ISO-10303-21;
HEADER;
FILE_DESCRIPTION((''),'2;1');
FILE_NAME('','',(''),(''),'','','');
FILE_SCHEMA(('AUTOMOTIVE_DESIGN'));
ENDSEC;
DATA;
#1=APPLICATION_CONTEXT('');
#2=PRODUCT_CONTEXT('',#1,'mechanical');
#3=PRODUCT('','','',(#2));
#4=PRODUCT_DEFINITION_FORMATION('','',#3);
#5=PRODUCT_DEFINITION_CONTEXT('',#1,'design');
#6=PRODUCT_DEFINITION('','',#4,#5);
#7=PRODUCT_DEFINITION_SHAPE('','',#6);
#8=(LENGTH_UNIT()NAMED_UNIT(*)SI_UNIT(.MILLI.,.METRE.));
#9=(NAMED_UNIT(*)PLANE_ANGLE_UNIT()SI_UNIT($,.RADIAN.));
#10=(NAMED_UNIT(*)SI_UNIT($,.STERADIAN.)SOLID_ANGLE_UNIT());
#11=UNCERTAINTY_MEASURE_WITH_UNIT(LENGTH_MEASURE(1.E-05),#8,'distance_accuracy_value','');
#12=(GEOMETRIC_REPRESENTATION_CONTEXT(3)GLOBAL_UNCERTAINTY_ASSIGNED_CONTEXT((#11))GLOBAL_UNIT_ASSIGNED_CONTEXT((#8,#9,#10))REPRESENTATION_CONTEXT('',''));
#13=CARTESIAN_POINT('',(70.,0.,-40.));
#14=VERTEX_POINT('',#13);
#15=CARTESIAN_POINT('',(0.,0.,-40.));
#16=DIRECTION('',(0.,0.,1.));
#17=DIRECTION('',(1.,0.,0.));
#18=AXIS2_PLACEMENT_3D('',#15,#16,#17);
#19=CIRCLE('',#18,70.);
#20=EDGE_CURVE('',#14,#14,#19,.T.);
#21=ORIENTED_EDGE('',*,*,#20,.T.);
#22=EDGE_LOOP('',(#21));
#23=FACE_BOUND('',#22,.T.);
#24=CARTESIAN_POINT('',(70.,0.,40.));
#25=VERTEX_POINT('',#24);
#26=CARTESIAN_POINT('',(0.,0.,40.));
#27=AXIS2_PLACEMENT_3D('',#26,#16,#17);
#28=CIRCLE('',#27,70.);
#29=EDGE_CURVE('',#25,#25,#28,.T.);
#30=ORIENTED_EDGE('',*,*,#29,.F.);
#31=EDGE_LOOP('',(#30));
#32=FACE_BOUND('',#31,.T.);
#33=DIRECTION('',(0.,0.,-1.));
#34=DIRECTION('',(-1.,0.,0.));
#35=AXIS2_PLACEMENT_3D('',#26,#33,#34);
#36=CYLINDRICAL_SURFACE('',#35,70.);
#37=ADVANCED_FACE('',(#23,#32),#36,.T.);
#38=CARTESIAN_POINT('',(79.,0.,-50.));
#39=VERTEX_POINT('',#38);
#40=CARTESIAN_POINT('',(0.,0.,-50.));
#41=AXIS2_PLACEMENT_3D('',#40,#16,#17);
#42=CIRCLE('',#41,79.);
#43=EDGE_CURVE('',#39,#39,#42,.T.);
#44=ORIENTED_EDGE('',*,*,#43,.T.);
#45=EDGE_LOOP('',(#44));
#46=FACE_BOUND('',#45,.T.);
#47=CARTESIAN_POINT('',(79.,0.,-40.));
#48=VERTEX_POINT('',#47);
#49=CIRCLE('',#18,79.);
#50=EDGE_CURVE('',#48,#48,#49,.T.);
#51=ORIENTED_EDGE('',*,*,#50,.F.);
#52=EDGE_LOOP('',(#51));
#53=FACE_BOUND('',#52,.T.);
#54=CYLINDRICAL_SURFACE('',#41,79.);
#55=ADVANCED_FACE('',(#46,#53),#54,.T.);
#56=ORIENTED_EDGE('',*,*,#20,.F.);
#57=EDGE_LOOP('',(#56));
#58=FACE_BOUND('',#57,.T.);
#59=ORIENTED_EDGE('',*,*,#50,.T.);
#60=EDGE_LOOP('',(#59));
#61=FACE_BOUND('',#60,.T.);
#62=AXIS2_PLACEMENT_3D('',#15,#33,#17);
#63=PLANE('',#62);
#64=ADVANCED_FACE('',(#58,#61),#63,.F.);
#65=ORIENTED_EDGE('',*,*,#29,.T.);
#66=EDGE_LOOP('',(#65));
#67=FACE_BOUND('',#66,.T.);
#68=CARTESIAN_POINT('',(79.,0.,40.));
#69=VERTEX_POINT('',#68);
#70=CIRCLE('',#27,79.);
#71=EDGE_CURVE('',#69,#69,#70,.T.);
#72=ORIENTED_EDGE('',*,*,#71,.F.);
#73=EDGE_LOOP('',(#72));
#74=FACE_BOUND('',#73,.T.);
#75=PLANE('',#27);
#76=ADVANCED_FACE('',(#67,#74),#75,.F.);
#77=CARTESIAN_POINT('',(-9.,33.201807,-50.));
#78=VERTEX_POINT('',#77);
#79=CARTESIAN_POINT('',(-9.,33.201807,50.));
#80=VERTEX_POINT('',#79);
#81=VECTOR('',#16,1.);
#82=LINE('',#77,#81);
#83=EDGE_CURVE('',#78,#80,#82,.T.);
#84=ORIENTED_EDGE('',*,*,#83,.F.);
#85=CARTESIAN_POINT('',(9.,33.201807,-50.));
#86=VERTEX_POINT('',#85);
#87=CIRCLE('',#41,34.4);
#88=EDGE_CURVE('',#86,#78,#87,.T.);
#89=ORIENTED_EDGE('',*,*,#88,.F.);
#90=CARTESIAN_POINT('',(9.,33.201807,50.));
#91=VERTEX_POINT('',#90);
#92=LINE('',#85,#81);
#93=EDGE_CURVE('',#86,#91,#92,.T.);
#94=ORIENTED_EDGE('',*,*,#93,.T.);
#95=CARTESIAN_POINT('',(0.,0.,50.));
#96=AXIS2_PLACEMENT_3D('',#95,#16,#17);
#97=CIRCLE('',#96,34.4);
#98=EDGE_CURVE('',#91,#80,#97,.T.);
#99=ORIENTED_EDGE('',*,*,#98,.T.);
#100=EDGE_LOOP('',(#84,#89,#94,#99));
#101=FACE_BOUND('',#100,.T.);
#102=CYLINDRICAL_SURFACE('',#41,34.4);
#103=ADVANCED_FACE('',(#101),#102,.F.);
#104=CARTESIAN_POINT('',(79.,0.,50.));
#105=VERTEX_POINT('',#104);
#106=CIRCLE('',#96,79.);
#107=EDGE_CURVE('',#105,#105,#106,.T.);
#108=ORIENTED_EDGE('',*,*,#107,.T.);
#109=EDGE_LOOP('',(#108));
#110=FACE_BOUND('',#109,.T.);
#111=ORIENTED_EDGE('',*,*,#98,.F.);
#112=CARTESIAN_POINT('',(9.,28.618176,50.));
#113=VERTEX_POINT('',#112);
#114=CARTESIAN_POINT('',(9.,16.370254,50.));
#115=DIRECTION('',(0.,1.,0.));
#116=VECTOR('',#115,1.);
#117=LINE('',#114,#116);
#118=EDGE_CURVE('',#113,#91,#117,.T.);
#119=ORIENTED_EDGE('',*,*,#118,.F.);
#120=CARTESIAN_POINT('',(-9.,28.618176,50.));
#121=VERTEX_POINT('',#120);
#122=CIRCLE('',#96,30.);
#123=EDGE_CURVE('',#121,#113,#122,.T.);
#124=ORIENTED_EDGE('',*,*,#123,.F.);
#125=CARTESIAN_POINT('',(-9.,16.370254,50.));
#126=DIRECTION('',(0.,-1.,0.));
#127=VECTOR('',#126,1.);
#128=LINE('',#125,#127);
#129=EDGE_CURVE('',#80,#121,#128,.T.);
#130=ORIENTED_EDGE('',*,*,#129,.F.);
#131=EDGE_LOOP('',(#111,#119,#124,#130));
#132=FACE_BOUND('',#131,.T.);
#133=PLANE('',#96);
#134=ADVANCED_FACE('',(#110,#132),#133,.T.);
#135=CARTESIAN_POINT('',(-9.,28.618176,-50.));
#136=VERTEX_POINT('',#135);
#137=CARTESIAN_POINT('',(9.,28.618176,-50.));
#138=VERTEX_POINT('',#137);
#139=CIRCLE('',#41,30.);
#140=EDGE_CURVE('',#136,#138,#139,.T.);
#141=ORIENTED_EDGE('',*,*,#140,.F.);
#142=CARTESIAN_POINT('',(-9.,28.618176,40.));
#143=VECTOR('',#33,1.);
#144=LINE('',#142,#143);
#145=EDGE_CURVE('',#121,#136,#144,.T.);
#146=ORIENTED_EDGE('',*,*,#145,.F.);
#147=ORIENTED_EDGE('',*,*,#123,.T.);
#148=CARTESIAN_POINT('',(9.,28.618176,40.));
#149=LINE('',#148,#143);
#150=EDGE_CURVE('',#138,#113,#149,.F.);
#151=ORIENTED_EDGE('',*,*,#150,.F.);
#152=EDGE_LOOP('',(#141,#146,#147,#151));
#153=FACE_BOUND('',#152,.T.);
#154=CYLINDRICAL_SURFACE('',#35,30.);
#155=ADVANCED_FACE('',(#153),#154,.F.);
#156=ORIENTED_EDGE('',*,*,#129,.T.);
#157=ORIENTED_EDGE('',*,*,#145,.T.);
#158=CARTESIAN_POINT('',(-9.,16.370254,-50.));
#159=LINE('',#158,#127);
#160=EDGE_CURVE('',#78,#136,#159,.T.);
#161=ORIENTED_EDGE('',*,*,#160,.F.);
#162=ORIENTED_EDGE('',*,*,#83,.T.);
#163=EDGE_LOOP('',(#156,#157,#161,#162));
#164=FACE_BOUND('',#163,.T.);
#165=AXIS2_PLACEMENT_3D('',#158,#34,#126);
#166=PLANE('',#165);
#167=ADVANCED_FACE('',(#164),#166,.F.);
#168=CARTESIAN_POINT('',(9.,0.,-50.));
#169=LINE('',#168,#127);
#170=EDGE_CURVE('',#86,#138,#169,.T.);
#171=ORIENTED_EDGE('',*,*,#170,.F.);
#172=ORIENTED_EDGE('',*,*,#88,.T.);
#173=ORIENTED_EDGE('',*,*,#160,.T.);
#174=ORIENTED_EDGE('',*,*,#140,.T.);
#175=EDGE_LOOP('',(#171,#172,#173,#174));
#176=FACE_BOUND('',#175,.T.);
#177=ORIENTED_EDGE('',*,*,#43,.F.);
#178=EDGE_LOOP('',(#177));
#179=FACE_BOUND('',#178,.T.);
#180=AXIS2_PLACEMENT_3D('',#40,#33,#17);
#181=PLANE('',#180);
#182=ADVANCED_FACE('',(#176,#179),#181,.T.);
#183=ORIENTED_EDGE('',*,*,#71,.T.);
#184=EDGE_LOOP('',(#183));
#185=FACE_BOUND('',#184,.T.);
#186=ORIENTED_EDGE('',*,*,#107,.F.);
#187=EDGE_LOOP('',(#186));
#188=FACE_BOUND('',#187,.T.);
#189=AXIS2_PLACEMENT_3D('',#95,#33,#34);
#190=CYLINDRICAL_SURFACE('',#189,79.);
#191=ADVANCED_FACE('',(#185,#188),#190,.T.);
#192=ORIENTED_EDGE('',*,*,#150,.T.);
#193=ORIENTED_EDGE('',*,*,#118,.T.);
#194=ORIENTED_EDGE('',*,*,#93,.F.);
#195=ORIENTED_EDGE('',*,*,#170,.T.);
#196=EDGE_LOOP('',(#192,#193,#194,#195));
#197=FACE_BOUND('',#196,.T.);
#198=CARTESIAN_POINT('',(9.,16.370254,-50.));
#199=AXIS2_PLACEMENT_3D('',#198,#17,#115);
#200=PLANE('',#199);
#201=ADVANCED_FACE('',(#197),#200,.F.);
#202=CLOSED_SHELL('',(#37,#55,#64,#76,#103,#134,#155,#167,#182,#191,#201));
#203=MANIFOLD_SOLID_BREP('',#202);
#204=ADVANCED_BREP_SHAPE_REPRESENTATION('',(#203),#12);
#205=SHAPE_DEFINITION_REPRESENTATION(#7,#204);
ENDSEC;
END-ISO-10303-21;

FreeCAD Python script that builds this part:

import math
import FreeCAD as App
import Part
import Sketcher
Q = App.Units.Quantity

doc = App.newDocument("Part")
body = doc.addObject("PartDesign::Body", "Body")

# Sketch on XY plane
sketch1 = body.newObject("Sketcher::SketchObject", "Sketch")
sketch1.AttachmentSupport = (doc.getObject("XY_Plane"), [""])
sketch1.MapMode = "FlatFace"
sketch1.addGeometry([
    Part.Circle(App.Vector(0, 0, 0), App.Vector(0, 0, 1), 70),
    Part.Circle(App.Vector(0, 0, 0), App.Vector(0, 0, 1), 30),
], False)
sketch1.addConstraint([
    Sketcher.Constraint("Coincident", 0, 3, -1, 1),
    Sketcher.Constraint("Coincident", 1, 3, -1, 1),
    Sketcher.Constraint("Diameter", 0, Q("140 mm")),
    Sketcher.Constraint("Diameter", 1, Q("60 mm")),
])
pad1 = body.newObject("PartDesign::Pad", "Pad")
pad1.Profile = sketch1
pad1.Length = 80
pad1.Midplane = True

# Sketch on XY plane
sketch2 = body.newObject("Sketcher::SketchObject", "Sketch001")
sketch2.AttachmentSupport = (doc.getObject("XY_Plane"), [""])
sketch2.MapMode = "FlatFace"
sketch2.AttachmentOffset = App.Placement(App.Vector(0, 0, 40), App.Rotation())
sketch2.addGeometry([
    Part.Circle(App.Vector(0, 0, 0), App.Vector(0, 0, 1), 79),
    Part.Circle(App.Vector(0, 0, 0), App.Vector(0, 0, 1), 30),
], False)
sketch2.addConstraint([
    Sketcher.Constraint("Coincident", 0, 3, -1, 1),
    Sketcher.Constraint("Coincident", 1, 3, -1, 1),
    Sketcher.Constraint("Diameter", 0, Q("158 mm")),
    Sketcher.Constraint("Diameter", 1, Q("60 mm")),
])
pad2 = body.newObject("PartDesign::Pad", "Pad001")
pad2.Profile = sketch2
pad2.Length = 10
doc.recompute()

mirrored = body.newObject("PartDesign::Mirrored", "Mirrored")
mirrored.Originals = [pad2]
mirrored.MirrorPlane = (doc.getObject("XY_Plane"), [""])
body.Tip = mirrored

# Sketch on XY plane
sketch3 = body.newObject("Sketcher::SketchObject", "Sketch002")
sketch3.AttachmentSupport = (doc.getObject("XY_Plane"), [""])
sketch3.MapMode = "FlatFace"
sketch3.AttachmentOffset = App.Placement(App.Vector(0, 0, 50), App.Rotation())
sketch3.addGeometry([
    Part.LineSegment(App.Vector(9, 16, 0), App.Vector(9, 33, 0)),
    Part.ArcOfCircle(Part.Circle(App.Vector(0, 0, 0), App.Vector(0, 0, 1), 34), math.radians(75), math.radians(105)),
    Part.LineSegment(App.Vector(-9, 33, 0), App.Vector(-9, 16, 0)),
    Part.LineSegment(App.Vector(-9, 16, 0), App.Vector(9, 16, 0)),
], False)
sketch3.addConstraint([
    Sketcher.Constraint("Coincident", 0, 2, 1, 1),
    Sketcher.Constraint("Coincident", 1, 2, 2, 1),
    Sketcher.Constraint("Coincident", 2, 2, 3, 1),
    Sketcher.Constraint("Coincident", 3, 2, 0, 1),
    Sketcher.Constraint("Vertical", 0),
    Sketcher.Constraint("Vertical", 2),
    Sketcher.Constraint("Horizontal", 3),
    Sketcher.Constraint("Coincident", 1, 3, -1, 1),
    Sketcher.Constraint("Horizontal", 0, 2, 1, 2),
    Sketcher.Constraint("Radius", 1, Q("34.4 mm")),
    Sketcher.Constraint("DistanceX", 3, 1, 3, 2, Q("18 mm")),
    Sketcher.Constraint("DistanceY", 0, 1, 0, 2, Q("16.831553 mm")),
])
pocket1 = body.newObject("PartDesign::Pocket", "Pocket")
pocket1.Profile = sketch3
pocket1.Type = "ThroughAll"

doc.recompute()
